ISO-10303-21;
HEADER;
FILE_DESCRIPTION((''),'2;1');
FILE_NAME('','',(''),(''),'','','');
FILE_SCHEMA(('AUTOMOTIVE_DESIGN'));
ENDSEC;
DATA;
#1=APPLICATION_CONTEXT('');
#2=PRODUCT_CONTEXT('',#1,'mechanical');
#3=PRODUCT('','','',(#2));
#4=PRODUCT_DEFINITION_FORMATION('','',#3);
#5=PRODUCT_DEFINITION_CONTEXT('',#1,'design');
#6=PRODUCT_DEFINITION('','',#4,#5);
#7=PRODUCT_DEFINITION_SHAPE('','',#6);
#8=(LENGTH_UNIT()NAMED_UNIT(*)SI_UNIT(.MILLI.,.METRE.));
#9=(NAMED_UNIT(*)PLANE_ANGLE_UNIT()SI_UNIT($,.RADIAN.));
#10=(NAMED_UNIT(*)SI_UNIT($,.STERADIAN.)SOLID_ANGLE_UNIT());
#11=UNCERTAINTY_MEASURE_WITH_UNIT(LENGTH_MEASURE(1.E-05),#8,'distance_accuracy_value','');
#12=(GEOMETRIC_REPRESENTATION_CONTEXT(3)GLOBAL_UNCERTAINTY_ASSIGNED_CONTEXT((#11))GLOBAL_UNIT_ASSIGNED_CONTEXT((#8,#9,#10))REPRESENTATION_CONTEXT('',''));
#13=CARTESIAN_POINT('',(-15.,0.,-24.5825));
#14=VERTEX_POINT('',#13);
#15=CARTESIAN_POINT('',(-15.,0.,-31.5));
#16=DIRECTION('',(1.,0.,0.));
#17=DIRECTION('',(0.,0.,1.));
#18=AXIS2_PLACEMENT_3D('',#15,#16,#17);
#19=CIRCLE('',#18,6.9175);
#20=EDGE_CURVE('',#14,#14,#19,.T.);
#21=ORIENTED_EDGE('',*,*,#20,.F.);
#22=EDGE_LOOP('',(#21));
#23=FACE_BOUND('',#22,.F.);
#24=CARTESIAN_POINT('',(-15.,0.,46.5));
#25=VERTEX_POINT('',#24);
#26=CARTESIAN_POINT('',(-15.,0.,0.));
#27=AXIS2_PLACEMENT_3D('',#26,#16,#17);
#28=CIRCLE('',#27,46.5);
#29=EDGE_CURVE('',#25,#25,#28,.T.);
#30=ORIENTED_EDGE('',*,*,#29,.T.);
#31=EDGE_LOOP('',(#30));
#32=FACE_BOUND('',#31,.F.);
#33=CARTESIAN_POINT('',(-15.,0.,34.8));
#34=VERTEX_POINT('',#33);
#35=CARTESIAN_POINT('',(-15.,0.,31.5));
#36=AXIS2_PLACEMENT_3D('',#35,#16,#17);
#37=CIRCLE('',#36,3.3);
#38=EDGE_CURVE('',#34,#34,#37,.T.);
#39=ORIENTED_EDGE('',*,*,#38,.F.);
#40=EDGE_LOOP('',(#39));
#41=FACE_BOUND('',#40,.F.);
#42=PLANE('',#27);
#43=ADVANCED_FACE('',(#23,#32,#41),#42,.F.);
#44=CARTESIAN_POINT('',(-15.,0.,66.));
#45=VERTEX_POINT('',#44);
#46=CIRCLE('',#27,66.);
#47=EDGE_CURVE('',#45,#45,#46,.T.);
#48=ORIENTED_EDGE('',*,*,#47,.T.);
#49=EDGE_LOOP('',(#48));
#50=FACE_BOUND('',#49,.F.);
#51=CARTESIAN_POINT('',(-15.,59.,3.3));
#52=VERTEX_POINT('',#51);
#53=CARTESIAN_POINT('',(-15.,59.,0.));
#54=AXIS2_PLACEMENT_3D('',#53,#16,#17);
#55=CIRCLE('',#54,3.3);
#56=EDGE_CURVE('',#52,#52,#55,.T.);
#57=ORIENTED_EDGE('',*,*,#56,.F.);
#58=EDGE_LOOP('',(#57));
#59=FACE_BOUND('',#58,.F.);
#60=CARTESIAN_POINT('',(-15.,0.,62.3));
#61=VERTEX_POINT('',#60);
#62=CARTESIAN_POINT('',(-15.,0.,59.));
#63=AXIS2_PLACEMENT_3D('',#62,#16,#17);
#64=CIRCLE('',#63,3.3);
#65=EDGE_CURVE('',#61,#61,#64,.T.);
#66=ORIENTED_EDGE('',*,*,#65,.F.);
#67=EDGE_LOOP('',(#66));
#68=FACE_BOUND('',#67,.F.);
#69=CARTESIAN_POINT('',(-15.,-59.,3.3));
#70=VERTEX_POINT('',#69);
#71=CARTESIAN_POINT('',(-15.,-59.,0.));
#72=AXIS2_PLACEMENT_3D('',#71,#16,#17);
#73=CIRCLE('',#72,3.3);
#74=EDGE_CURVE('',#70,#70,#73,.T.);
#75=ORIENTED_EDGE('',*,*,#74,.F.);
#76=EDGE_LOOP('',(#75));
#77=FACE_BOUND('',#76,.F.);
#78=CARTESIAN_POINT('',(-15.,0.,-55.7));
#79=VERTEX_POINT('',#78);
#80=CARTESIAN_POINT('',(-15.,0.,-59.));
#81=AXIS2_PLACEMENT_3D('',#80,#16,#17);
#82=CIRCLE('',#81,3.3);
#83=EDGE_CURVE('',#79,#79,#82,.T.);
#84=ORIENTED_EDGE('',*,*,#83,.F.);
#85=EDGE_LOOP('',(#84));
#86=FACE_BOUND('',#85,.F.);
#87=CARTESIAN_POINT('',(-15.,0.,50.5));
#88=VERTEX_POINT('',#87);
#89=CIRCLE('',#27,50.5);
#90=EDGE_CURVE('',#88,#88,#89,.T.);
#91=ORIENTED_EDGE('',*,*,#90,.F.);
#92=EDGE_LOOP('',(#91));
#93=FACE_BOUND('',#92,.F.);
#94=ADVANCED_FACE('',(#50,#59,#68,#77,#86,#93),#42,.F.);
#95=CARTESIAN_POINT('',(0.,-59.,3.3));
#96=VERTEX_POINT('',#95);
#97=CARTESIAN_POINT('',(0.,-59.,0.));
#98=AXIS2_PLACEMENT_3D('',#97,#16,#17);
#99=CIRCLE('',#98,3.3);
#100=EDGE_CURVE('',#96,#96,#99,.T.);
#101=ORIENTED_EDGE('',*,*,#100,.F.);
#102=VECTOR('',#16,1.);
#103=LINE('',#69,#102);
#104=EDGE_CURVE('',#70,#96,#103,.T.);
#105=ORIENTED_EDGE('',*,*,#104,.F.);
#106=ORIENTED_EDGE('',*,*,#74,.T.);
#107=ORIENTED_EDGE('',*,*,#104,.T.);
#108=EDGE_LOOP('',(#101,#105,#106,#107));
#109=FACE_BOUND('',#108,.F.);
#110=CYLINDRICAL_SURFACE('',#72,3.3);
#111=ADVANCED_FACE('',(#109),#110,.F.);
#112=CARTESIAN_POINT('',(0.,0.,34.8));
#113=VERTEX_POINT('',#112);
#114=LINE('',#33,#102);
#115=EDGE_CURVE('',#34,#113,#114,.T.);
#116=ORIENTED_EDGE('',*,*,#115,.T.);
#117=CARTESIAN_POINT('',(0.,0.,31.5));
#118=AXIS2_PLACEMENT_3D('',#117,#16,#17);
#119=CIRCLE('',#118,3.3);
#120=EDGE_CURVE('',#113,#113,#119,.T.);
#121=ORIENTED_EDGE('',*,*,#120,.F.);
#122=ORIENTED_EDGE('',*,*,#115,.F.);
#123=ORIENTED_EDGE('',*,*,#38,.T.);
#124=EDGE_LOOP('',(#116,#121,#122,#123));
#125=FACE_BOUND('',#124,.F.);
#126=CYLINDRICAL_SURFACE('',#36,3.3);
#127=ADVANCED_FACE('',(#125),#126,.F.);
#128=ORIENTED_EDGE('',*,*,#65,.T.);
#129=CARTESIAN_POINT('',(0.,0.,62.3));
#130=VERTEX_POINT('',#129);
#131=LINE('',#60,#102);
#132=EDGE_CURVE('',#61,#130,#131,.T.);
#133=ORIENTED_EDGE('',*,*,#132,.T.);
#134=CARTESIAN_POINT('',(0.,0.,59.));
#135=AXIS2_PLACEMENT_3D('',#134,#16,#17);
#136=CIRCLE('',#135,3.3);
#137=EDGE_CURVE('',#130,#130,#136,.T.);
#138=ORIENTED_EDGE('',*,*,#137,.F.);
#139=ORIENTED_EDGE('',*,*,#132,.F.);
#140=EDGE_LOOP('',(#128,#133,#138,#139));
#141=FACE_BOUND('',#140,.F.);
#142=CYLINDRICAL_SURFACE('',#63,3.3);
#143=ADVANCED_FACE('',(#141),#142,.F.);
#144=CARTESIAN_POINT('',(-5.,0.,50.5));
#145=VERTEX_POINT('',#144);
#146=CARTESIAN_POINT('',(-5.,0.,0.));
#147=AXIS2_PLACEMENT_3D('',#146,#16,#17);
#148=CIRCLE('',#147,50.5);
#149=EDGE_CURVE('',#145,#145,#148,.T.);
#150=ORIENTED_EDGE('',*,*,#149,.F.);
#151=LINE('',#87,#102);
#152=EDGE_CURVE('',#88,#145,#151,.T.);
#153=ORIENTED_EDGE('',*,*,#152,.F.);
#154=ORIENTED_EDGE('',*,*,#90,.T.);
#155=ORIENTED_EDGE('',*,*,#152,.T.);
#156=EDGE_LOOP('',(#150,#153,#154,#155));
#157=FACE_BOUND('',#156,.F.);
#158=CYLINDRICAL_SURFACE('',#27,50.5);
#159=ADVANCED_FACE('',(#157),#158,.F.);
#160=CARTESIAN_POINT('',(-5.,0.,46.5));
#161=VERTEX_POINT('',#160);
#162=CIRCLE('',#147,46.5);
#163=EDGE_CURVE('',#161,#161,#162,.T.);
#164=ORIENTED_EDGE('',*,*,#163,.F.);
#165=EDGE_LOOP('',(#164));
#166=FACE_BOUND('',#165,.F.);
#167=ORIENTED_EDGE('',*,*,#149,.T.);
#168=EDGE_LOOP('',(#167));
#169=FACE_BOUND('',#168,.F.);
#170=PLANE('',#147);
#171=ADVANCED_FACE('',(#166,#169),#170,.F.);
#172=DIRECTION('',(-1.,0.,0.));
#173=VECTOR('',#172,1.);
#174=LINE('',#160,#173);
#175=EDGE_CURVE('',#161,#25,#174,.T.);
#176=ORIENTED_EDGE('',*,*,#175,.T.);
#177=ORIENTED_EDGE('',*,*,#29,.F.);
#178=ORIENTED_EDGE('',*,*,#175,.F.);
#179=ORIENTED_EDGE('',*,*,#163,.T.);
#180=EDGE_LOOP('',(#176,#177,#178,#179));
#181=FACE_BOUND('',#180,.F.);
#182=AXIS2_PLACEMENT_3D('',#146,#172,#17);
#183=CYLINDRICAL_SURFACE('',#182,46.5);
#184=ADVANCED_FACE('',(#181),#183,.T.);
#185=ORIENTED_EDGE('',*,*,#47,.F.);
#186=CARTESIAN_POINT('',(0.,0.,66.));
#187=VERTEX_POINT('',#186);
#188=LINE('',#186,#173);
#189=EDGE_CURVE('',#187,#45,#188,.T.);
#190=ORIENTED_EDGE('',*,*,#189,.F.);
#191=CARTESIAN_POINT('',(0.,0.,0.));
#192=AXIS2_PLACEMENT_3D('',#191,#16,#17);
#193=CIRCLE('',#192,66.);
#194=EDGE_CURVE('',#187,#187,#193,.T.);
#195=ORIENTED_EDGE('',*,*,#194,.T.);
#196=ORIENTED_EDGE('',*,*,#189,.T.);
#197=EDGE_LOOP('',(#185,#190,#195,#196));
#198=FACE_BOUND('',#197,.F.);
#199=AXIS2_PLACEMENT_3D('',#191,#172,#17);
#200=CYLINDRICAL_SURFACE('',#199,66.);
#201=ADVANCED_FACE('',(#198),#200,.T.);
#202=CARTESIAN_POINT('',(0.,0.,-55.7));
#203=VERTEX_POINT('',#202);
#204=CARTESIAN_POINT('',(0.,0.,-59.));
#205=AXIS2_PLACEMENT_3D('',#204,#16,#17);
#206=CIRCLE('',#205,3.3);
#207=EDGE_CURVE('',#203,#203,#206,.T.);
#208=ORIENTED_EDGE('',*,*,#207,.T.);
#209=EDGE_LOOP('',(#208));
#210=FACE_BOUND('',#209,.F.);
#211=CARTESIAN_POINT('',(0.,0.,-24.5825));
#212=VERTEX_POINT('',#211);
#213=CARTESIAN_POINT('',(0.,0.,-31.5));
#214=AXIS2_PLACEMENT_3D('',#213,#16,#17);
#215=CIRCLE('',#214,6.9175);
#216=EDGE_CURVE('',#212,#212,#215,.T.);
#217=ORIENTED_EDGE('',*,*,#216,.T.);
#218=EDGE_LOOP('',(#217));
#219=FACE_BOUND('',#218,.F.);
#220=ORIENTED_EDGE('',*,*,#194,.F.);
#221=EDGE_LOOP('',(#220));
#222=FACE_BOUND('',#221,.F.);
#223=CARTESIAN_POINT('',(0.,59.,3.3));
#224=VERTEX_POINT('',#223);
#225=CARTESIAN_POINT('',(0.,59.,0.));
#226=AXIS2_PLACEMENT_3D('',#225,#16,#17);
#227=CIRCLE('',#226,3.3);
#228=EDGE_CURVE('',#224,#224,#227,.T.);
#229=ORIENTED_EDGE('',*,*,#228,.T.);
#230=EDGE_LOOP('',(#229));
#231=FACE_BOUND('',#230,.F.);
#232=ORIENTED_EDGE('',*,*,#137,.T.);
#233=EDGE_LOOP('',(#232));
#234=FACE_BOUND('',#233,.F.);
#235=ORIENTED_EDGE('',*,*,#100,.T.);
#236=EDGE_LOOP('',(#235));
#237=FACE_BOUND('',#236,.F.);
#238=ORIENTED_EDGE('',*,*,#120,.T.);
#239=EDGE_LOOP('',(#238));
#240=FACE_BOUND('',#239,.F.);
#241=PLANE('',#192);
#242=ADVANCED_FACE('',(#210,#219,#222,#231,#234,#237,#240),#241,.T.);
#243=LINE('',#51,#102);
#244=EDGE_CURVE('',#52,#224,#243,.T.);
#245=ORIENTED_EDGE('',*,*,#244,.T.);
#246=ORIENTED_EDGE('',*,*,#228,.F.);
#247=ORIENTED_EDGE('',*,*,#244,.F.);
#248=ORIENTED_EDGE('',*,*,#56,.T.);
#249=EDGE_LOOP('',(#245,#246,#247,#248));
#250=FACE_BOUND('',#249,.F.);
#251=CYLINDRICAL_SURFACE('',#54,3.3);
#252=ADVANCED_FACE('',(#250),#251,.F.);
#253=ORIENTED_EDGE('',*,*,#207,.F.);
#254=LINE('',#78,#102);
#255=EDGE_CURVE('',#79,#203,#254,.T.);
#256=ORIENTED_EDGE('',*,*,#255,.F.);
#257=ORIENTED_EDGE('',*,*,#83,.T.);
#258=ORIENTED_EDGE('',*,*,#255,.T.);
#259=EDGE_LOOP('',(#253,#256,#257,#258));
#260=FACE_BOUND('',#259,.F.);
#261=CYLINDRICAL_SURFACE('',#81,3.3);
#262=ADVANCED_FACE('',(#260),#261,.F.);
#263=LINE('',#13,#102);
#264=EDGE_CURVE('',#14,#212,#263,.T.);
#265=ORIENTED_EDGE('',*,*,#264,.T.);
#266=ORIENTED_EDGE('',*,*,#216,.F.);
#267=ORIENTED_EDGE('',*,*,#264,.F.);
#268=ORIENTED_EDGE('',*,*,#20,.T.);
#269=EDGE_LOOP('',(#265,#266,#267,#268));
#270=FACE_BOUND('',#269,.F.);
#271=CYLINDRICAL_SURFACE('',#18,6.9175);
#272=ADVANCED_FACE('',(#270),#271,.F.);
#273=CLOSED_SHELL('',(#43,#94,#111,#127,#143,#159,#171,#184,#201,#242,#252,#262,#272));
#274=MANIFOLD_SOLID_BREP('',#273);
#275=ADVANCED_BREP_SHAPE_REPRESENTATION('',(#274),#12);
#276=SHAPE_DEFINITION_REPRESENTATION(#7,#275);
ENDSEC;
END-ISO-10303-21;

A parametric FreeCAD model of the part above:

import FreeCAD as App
import Part
import Sketcher
from FreeCAD import Vector
Q = App.Units.Quantity


def add_polygon(sketch, points):
    """Adds a closed chain of lines whose ends are joined by coincident constraints."""
    first, n = sketch.GeometryCount, len(points)
    for a, b in zip(points, points[1:] + points[:1]):
        sketch.addGeometry(Part.LineSegment(App.Vector(*a, 0), App.Vector(*b, 0)), False)
    for i in range(n):
        sketch.addConstraint(Sketcher.Constraint("Coincident", first + i, 2, first + (i + 1) % n, 1))

doc = App.newDocument("Part")
body = doc.addObject("PartDesign::Body", "Body")

# Sketch on XZ plane
sketch1 = body.newObject("Sketcher::SketchObject", "Sketch")
sketch1.AttachmentSupport = (doc.getObject("XZ_Plane"), [""])
sketch1.MapMode = "FlatFace"
add_polygon(sketch1, [(0, 66), (0, 0), (-15, 0), (-15, 46.5), (-5, 46.5), (-5, 50.5), (-15, 50.5), (-15, 66)])  # lines 0-7
sketch1.addConstraint(Sketcher.Constraint("Vertical", 0))
sketch1.addConstraint(Sketcher.Constraint("Horizontal", 1))
sketch1.addConstraint(Sketcher.Constraint("Vertical", 2))
sketch1.addConstraint(Sketcher.Constraint("Horizontal", 3))
sketch1.addConstraint(Sketcher.Constraint("Vertical", 4))
sketch1.addConstraint(Sketcher.Constraint("Horizontal", 5))
sketch1.addConstraint(Sketcher.Constraint("Vertical", 6))
sketch1.addConstraint(Sketcher.Constraint("Horizontal", 7))
sketch1.addConstraint(Sketcher.Constraint("Coincident", 0, 2, -1, 1))
sketch1.addConstraint(Sketcher.Constraint("Vertical", 2, 2, 5, 2))
sketch1.addConstraint(Sketcher.Constraint("DistanceX", 1, 2, 1, 1, Q("15 mm")))
sketch1.addConstraint(Sketcher.Constraint("DistanceX", 3, 1, 3, 2, Q("10 mm")))
sketch1.addConstraint(Sketcher.Constraint("DistanceY", 0, 2, 0, 1, Q("66 mm")))
sketch1.addConstraint(Sketcher.Constraint("DistanceY", 4, 1, 4, 2, Q("4 mm")))
sketch1.addConstraint(Sketcher.Constraint("DistanceY", 6, 1, 6, 2, Q("15.5 mm")))
revolution = body.newObject("PartDesign::Revolution", "Revolution")
revolution.Profile = sketch1
revolution.ReferenceAxis = (sketch1, ["H_Axis"])
revolution.Angle = 360

# Sketch on YZ plane
sketch2 = body.newObject("Sketcher::SketchObject", "Sketch001")
sketch2.AttachmentSupport = (doc.getObject("YZ_Plane"), [""])
sketch2.MapMode = "FlatFace"
sketch2.AttachmentOffset = App.Placement(Vector(0, 0, -15), App.Rotation())
sketch2.addGeometry(Part.Circle(Vector(0, 59, 0), Vector(0, 0, 1), 3.3), False)
sketch2.addGeometry(Part.Circle(Vector(-59, 0, 0), Vector(0, 0, 1), 3.3), False)
sketch2.addGeometry(Part.Circle(Vector(0, -59, 0), Vector(0, 0, 1), 3.3), False)
sketch2.addGeometry(Part.Circle(Vector(59, 0, 0), Vector(0, 0, 1), 3.3), False)
sketch2.addConstraint(Sketcher.Constraint("Equal", 0, 1))
sketch2.addConstraint(Sketcher.Constraint("Equal", 1, 2))
sketch2.addConstraint(Sketcher.Constraint("Equal", 2, 3))
sketch2.addConstraint(Sketcher.Constraint("Symmetric", 0, 3, 2, 3, -1, 1))
sketch2.addConstraint(Sketcher.Constraint("Symmetric", 1, 3, 3, 3, -1, 1))
sketch2.addConstraint(Sketcher.Constraint("PointOnObject", 0, 3, -2))
sketch2.addConstraint(Sketcher.Constraint("PointOnObject", 1, 3, -1))
sketch2.addConstraint(Sketcher.Constraint("Diameter", 0, Q("6.6 mm")))
sketch2.addConstraint(Sketcher.Constraint("DistanceY", -1, 1, 0, 3, Q("59 mm")))
sketch2.addConstraint(Sketcher.Constraint("DistanceX", 1, 3, -1, 1, Q("59 mm")))
doc.recompute()
hole = body.newObject("PartDesign::Hole", "Hole")
hole.Profile = sketch2
hole.ThreadType = "None"
hole.Diameter = 6.6
hole.DepthType = "ThroughAll"
hole.Reversed = True

# Sketch on YZ plane
sketch3 = body.newObject("Sketcher::SketchObject", "Sketch002")
sketch3.AttachmentSupport = (doc.getObject("YZ_Plane"), [""])
sketch3.MapMode = "FlatFace"
sketch3.AttachmentOffset = App.Placement(Vector(0, 0, -15), App.Rotation())
sketch3.addGeometry(Part.Circle(Vector(0, 31.5, 0), Vector(0, 0, 1), 3.3), False)
sketch3.addConstraint(Sketcher.Constraint("PointOnObject", 0, 3, -2))
sketch3.addConstraint(Sketcher.Constraint("Diameter", 0, Q("6.6 mm")))
sketch3.addConstraint(Sketcher.Constraint("DistanceY", -1, 1, 0, 3, Q("31.5 mm")))
doc.recompute()
hole2 = body.newObject("PartDesign::Hole", "Hole001")
hole2.Profile = sketch3
hole2.ThreadType = "None"
hole2.Diameter = 6.6
hole2.DepthType = "ThroughAll"
hole2.Reversed = True

# Sketch on YZ plane
sketch4 = body.newObject("Sketcher::SketchObject", "Sketch003")
sketch4.AttachmentSupport = (doc.getObject("YZ_Plane"), [""])
sketch4.MapMode = "FlatFace"
sketch4.AttachmentOffset = App.Placement(Vector(0, 0, -15), App.Rotation())
sketch4.addGeometry(Part.Circle(Vector(0, -32, 0), Vector(0, 0, 1), 7), False)
sketch4.addConstraint(Sketcher.Constraint("PointOnObject", 0, 3, -2))
sketch4.addConstraint(Sketcher.Constraint("Diameter", 0, Q("13.835 mm")))
sketch4.addConstraint(Sketcher.Constraint("DistanceY", 0, 3, -1, 1, Q("31.5 mm")))
doc.recompute()
hole3 = body.newObject("PartDesign::Hole", "Hole002")
hole3.Profile = sketch4
hole3.ThreadType = "None"
hole3.Diameter = 13.835
hole3.DepthType = "ThroughAll"
hole3.Reversed = True

doc.recompute()
